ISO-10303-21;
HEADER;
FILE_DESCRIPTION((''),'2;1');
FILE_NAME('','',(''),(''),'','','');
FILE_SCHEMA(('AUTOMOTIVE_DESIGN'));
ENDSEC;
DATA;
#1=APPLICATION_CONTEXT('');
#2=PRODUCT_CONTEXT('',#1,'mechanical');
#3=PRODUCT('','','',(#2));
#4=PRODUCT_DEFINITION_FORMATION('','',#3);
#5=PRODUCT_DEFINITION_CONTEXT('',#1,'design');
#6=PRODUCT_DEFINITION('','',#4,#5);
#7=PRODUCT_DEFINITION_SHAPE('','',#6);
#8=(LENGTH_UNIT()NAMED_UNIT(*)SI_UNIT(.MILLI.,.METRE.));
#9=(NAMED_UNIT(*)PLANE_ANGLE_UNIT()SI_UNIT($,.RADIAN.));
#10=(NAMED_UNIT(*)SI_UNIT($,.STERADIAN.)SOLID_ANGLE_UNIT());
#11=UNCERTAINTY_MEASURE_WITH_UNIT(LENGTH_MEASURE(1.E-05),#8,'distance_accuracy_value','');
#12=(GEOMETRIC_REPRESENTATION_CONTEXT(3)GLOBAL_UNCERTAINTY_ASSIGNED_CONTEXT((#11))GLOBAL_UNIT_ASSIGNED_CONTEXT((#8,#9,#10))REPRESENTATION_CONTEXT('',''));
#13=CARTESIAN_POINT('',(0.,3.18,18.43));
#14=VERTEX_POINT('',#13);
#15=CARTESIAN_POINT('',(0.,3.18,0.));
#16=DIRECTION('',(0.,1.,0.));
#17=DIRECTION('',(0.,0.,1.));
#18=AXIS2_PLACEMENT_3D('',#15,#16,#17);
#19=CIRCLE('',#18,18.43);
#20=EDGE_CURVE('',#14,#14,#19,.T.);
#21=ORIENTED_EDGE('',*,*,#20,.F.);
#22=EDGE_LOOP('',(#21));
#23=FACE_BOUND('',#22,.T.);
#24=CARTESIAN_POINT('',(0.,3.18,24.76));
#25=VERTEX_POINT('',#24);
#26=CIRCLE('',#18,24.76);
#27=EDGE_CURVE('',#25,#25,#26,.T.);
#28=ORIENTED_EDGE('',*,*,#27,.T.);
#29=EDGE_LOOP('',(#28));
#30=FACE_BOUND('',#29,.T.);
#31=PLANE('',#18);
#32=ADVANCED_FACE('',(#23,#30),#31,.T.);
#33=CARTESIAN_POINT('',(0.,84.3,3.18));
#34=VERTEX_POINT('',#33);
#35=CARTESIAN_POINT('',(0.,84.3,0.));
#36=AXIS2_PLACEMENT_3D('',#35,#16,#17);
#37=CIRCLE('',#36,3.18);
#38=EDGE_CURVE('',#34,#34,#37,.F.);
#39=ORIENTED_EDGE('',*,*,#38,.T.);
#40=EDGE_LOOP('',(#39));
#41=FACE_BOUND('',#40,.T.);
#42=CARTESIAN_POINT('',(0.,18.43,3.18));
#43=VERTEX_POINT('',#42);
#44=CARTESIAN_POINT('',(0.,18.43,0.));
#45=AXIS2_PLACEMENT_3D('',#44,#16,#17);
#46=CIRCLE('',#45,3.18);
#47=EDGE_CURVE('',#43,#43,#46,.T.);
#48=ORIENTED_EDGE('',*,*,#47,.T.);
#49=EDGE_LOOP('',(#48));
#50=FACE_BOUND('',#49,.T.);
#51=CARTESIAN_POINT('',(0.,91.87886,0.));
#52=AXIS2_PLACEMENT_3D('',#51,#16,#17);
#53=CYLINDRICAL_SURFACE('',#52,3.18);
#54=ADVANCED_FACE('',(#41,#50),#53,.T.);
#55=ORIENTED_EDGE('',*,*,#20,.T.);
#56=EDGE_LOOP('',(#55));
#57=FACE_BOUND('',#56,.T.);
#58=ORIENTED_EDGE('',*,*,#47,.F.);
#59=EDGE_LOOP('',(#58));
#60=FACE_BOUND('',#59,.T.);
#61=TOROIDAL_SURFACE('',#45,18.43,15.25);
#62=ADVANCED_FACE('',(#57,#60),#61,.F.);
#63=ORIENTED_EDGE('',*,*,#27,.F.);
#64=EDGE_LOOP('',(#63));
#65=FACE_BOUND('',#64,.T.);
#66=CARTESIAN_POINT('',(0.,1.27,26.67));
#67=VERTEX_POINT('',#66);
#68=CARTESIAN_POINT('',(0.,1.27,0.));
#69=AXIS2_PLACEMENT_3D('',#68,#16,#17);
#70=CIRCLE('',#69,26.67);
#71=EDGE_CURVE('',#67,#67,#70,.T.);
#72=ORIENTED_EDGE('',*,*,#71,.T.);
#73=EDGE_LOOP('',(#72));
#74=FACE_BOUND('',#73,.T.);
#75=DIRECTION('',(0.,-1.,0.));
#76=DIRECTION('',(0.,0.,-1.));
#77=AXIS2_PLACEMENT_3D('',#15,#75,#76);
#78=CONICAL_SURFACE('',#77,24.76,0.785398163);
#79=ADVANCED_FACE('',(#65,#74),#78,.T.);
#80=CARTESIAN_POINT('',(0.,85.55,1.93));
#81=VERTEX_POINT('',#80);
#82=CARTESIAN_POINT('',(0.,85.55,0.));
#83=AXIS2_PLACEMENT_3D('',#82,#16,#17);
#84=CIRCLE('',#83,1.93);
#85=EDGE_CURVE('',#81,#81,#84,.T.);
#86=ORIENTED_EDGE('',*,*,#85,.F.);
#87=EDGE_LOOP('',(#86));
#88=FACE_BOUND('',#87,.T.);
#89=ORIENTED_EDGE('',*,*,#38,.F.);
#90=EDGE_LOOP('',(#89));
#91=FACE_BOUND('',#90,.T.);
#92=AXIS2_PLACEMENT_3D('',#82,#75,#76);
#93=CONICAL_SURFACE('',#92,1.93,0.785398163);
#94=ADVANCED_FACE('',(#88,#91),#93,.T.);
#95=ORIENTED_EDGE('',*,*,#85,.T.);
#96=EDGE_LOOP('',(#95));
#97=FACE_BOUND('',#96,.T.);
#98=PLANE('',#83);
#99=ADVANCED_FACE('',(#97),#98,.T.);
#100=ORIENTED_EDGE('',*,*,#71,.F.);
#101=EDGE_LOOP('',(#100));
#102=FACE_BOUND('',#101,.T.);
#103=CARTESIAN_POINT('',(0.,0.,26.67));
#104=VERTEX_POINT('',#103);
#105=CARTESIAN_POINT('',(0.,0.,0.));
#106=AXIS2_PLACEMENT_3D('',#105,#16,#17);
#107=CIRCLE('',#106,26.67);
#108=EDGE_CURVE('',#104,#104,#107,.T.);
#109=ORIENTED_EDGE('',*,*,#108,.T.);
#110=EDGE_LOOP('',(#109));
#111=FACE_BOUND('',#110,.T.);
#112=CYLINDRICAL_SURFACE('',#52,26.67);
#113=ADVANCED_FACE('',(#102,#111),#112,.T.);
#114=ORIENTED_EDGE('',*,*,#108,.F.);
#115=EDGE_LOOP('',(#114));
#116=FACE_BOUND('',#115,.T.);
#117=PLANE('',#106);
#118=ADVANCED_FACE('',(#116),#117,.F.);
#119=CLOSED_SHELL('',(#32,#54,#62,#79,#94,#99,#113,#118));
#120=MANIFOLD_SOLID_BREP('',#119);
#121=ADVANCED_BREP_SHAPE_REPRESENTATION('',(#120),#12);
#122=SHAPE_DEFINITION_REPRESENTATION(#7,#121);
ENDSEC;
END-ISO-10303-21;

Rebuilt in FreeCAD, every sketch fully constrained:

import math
import FreeCAD as App
import Part
import Sketcher
Q = App.Units.Quantity


def edges_at(feature, points):
    """Names of the edges that pass closest to the given points."""
    edges = feature.Shape.Edges
    near = lambda p: min(range(len(edges)), key=lambda i: edges[i].distToShape(Part.Vertex(*p))[0])
    return sorted({f"Edge{near(p) + 1}" for p in points})

doc = App.newDocument("Part")
params = doc.addObject("Spreadsheet::Sheet", "Params")
for row, (alias, value) in enumerate([
    ("sketch1_width", "1.05 in"),
    ("sketch1_height", "0.05 in"),
    ("revolution_angle", "360 deg"),
    ("chamfer_size", "1.25 mm"),
], start=1):
    params.set(f"A{row}", alias)
    params.set(f"B{row}", "=" + value)
    params.setAlias(f"B{row}", alias)

body = doc.addObject("PartDesign::Body", "Body")

# Sketch on XY plane
sketch1 = body.newObject("Sketcher::SketchObject", "Sketch")
sketch1.AttachmentSupport = (doc.getObject("XY_Plane"), [""])
sketch1.MapMode = "FlatFace"
sketch1.addGeometry(Part.LineSegment(App.Vector(0, 0, 0), App.Vector(26.67, 0, 0)), False)
sketch1.addGeometry(Part.LineSegment(App.Vector(26.67, 0, 0), App.Vector(26.67, 1.27, 0)), False)
sketch1.addGeometry(Part.LineSegment(App.Vector(26.67, 1.27, 0), App.Vector(24.76, 3.18, 0)), False)
sketch1.addGeometry(Part.LineSegment(App.Vector(24.76, 3.18, 0), App.Vector(18.43, 3.18, 0)), False)
sketch1.addGeometry(Part.ArcOfCircle(Part.Circle(App.Vector(18.43, 18.43, 0), App.Vector(0, 0, 1), 15.25), math.radians(180), math.radians(270)), False)
sketch1.addGeometry(Part.LineSegment(App.Vector(3.18, 18.43, 0), App.Vector(3.18, 85.55, 0)), False)
sketch1.addGeometry(Part.LineSegment(App.Vector(3.18, 85.55, 0), App.Vector(0, 85.55, 0)), False)
sketch1.addGeometry(Part.LineSegment(App.Vector(0, 85.55, 0), App.Vector(0, 0, 0)), False)
sketch1.addConstraint(Sketcher.Constraint("Coincident", 0, 2, 1, 1))
sketch1.addConstraint(Sketcher.Constraint("Coincident", 1, 2, 2, 1))
sketch1.addConstraint(Sketcher.Constraint("Coincident", 2, 2, 3, 1))
sketch1.addConstraint(Sketcher.Constraint("Tangent", 3, 2, 4, 2))
sketch1.addConstraint(Sketcher.Constraint("Tangent", 4, 1, 5, 1))
sketch1.addConstraint(Sketcher.Constraint("Coincident", 5, 2, 6, 1))
sketch1.addConstraint(Sketcher.Constraint("Coincident", 6, 2, 7, 1))
sketch1.addConstraint(Sketcher.Constraint("Coincident", 7, 2, 0, 1))
sketch1.addConstraint(Sketcher.Constraint("Horizontal", 0))
sketch1.addConstraint(Sketcher.Constraint("Vertical", 1))
sketch1.addConstraint(Sketcher.Constraint("Horizontal", 3))
sketch1.addConstraint(Sketcher.Constraint("Vertical", 5))
sketch1.addConstraint(Sketcher.Constraint("Horizontal", 6))
sketch1.addConstraint(Sketcher.Constraint("Vertical", 7))
sketch1.addConstraint(Sketcher.Constraint("Coincident", 7, 2, -1, 1))
sketch1.addConstraint(Sketcher.Constraint("Angle", 2, Q("135 deg")))
sketch1.addConstraint(Sketcher.Constraint("DistanceX", 0, 1, 0, 2, Q("1.05 in")))
sketch1.addConstraint(Sketcher.Constraint("DistanceY", 1, 1, 1, 2, Q("0.05 in")))
sketch1.addConstraint(Sketcher.Constraint("Radius", 4, Q("15.25 mm")))
sketch1.addConstraint(Sketcher.Constraint("DistanceX", 3, 2, 3, 1, Q("6.33 mm")))
sketch1.addConstraint(Sketcher.Constraint("DistanceX", 6, 2, 6, 1, Q("3.18 mm")))
sketch1.addConstraint(Sketcher.Constraint("DistanceY", 5, 1, 5, 2, Q("67.12 mm")))
sketch1.setExpression("Constraints[16]", "Params.sketch1_width")
sketch1.setExpression("Constraints[17]", "Params.sketch1_height")
revolution = body.newObject("PartDesign::Revolution", "Revolution")
revolution.Profile = sketch1
revolution.ReferenceAxis = (sketch1, ["V_Axis"])
revolution.setExpression("Angle", "Params.revolution_angle")
doc.recompute()

chamfer = body.newObject("PartDesign::Chamfer", "Chamfer")
chamfer.Base = (revolution, edges_at(revolution, [(0, 85.55, -3.18)]))
chamfer.setExpression("Size", "Params.chamfer_size")

doc.recompute()
